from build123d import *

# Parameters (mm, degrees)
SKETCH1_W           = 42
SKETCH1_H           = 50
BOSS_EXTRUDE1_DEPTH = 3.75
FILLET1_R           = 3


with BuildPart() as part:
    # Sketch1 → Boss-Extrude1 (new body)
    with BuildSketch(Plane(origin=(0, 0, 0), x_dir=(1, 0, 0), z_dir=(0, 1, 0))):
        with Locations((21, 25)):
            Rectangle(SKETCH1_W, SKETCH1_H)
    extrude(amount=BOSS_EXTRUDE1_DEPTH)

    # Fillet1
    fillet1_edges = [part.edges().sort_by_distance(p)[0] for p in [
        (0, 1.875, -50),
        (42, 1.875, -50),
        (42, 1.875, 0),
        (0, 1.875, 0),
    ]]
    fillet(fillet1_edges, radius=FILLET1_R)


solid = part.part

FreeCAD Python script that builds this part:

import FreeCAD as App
import Part
import Sketcher
from FreeCAD import Vector


def edges_at(feature, points):
    """Names of the edges that pass closest to the given points."""
    edges = feature.Shape.Edges
    near = lambda p: min(range(len(edges)), key=lambda i: edges[i].distToShape(Part.Vertex(*p))[0])
    return sorted({f"Edge{near(p) + 1}" for p in points})

doc = App.newDocument("Part")
body = doc.addObject("PartDesign::Body", "Body")

sketch1 = doc.addObject("Sketcher::SketchObject", "Sketch")
body.addObject(sketch1)
sketch1.AttachmentSupport = (doc.XZ_Plane, [""])
sketch1.MapMode = "FlatFace"
sketch1.addGeometry([
    Part.LineSegment(Vector(0, -50, 0), Vector(0, 0, 0)),
    Part.LineSegment(Vector(0, 0, 0), Vector(42, 0, 0)),
    Part.LineSegment(Vector(42, 0, 0), Vector(42, -50, 0)),
    Part.LineSegment(Vector(42, -50, 0), Vector(0, -50, 0)),
], False)
sketch1.addConstraint([
    Sketcher.Constraint("Coincident", 0, 2, 1, 1),
    Sketcher.Constraint("Coincident", 1, 2, 2, 1),
    Sketcher.Constraint("Coincident", 2, 2, 3, 1),
    Sketcher.Constraint("Coincident", 3, 2, 0, 1),
    Sketcher.Constraint("Vertical", 0),
    Sketcher.Constraint("Horizontal", 1),
    Sketcher.Constraint("Vertical", 2),
    Sketcher.Constraint("Horizontal", 3),
    Sketcher.Constraint("Coincident", 0, 2, -1, 1),
    Sketcher.Constraint("DistanceX", 1, 1, 1, 2, 42.0),
    Sketcher.Constraint("DistanceY", 0, 1, 0, 2, 50.0),
])
pad1 = doc.addObject("PartDesign::Pad", "Pad")
body.addObject(pad1)
pad1.Profile = sketch1
pad1.Length = 3.75
pad1.Reversed = True
doc.recompute()

fillet = doc.addObject("PartDesign::Fillet", "Fillet")
body.addObject(fillet)
fillet.Base = (pad1, edges_at(pad1, [
    (0, 1.875, -50),
    (42, 1.875, -50),
    (42, 1.875, 0),
    (0, 1.875, 0),
]))
fillet.Radius = 3

doc.recompute()
